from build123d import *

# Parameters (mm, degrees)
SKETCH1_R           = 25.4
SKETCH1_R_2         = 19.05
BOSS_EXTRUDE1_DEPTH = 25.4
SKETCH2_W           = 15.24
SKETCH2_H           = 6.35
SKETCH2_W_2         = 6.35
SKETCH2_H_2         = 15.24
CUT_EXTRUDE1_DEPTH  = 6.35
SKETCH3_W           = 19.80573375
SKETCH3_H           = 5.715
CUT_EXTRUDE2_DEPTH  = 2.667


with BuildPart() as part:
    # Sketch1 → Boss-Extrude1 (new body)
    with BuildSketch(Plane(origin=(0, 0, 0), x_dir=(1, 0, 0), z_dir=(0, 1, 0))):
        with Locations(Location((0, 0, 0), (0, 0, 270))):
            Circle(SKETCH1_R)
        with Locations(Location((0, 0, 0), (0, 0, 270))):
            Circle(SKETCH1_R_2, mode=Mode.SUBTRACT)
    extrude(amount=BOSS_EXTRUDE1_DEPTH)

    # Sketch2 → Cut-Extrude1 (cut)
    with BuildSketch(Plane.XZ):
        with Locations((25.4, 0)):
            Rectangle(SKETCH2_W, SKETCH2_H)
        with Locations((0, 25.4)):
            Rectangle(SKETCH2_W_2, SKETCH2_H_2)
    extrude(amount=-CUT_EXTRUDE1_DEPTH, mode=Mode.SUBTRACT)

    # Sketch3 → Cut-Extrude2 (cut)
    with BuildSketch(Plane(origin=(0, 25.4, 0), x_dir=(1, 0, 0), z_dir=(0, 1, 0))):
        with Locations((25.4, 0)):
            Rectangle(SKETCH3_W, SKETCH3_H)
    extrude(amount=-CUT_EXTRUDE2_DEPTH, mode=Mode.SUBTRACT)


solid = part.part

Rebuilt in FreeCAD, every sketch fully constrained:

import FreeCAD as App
import Part
import Sketcher
from FreeCAD import Vector
Q = App.Units.Quantity

doc = App.newDocument("Part")
body = doc.addObject("PartDesign::Body", "Body")

# Sketch on XZ plane
sketch1 = body.newObject("Sketcher::SketchObject", "Sketch")
sketch1.AttachmentSupport = (doc.getObject("XZ_Plane"), [""])
sketch1.MapMode = "FlatFace"
sketch1.addGeometry(Part.Circle(Vector(0, 0, 0), Vector(0, 0, 1), 25.4), False)
sketch1.addGeometry(Part.Circle(Vector(0, 0, 0), Vector(0, 0, 1), 19.05), False)
sketch1.addConstraint(Sketcher.Constraint("Coincident", 0, 3, -1, 1))
sketch1.addConstraint(Sketcher.Constraint("Coincident", 1, 3, -1, 1))
sketch1.addConstraint(Sketcher.Constraint("Diameter", 0, Q("2 in")))
sketch1.addConstraint(Sketcher.Constraint("Diameter", 1, Q("1.5 in")))
pad1 = body.newObject("PartDesign::Pad", "Pad")
pad1.Profile = sketch1
pad1.Length = Q("1 in")
pad1.Reversed = True

# Sketch on XZ plane
sketch2 = body.newObject("Sketcher::SketchObject", "Sketch001")
sketch2.AttachmentSupport = (doc.getObject("XZ_Plane"), [""])
sketch2.MapMode = "FlatFace"
sketch2.addGeometry(Part.LineSegment(Vector(17.78, 3.175, 0), Vector(17.78, -3.175, 0)), False)
sketch2.addGeometry(Part.LineSegment(Vector(17.78, -3.175, 0), Vector(33.02, -3.175, 0)), False)
sketch2.addGeometry(Part.LineSegment(Vector(33.02, -3.175, 0), Vector(33.02, 3.175, 0)), False)
sketch2.addGeometry(Part.LineSegment(Vector(33.02, 3.175, 0), Vector(17.78, 3.175, 0)), False)
sketch2.addGeometry(Part.LineSegment(Vector(-3.175, 33.02, 0), Vector(-3.175, 17.78, 0)), False)
sketch2.addGeometry(Part.LineSegment(Vector(-3.175, 17.78, 0), Vector(3.175, 17.78, 0)), False)
sketch2.addGeometry(Part.LineSegment(Vector(3.175, 17.78, 0), Vector(3.175, 33.02, 0)), False)
sketch2.addGeometry(Part.LineSegment(Vector(3.175, 33.02, 0), Vector(-3.175, 33.02, 0)), False)
sketch2.addConstraint(Sketcher.Constraint("Coincident", 0, 2, 1, 1))
sketch2.addConstraint(Sketcher.Constraint("Coincident", 1, 2, 2, 1))
sketch2.addConstraint(Sketcher.Constraint("Coincident", 2, 2, 3, 1))
sketch2.addConstraint(Sketcher.Constraint("Coincident", 3, 2, 0, 1))
sketch2.addConstraint(Sketcher.Constraint("Coincident", 4, 2, 5, 1))
sketch2.addConstraint(Sketcher.Constraint("Coincident", 5, 2, 6, 1))
sketch2.addConstraint(Sketcher.Constraint("Coincident", 6, 2, 7, 1))
sketch2.addConstraint(Sketcher.Constraint("Coincident", 7, 2, 4, 1))
sketch2.addConstraint(Sketcher.Constraint("Vertical", 0))
sketch2.addConstraint(Sketcher.Constraint("Horizontal", 1))
sketch2.addConstraint(Sketcher.Constraint("Vertical", 2))
sketch2.addConstraint(Sketcher.Constraint("Horizontal", 3))
sketch2.addConstraint(Sketcher.Constraint("Vertical", 4))
sketch2.addConstraint(Sketcher.Constraint("Horizontal", 5))
sketch2.addConstraint(Sketcher.Constraint("Vertical", 6))
sketch2.addConstraint(Sketcher.Constraint("Horizontal", 7))
sketch2.addConstraint(Sketcher.Constraint("Equal", 7, 0))
sketch2.addConstraint(Sketcher.Constraint("Equal", 3, 4))
sketch2.addConstraint(Sketcher.Constraint("DistanceX", 1, 1, 1, 2, Q("0.6 in")))
sketch2.addConstraint(Sketcher.Constraint("DistanceX", 5, 1, 5, 2, Q("0.25 in")))
sketch2.addConstraint(Sketcher.Constraint("DistanceX", -1, 1, 0, 2, Q("0.7 in")))
sketch2.addConstraint(Sketcher.Constraint("DistanceY", -1, 1, 4, 2, Q("0.7 in")))
sketch2.addConstraint(Sketcher.Constraint("DistanceY", 0, 2, -1, 1, Q("0.125 in")))
sketch2.addConstraint(Sketcher.Constraint("DistanceX", 4, 2, -1, 1, Q("0.125 in")))
pocket1 = body.newObject("PartDesign::Pocket", "Pocket")
pocket1.Profile = sketch2
pocket1.Length = Q("0.25 in")

# Sketch on XZ plane
sketch3 = body.newObject("Sketcher::SketchObject", "Sketch002")
sketch3.AttachmentSupport = (doc.getObject("XZ_Plane"), [""])
sketch3.MapMode = "FlatFace"
sketch3.AttachmentOffset = App.Placement(Vector(0, 0, -1 * 25.4), App.Rotation())
sketch3.addGeometry(Part.LineSegment(Vector(15.497133, -2.8575, 0), Vector(15.497133, 2.8575, 0)), False)
sketch3.addGeometry(Part.LineSegment(Vector(15.497133, 2.8575, 0), Vector(35.302867, 2.8575, 0)), False)
sketch3.addGeometry(Part.LineSegment(Vector(35.302867, 2.8575, 0), Vector(35.302867, -2.8575, 0)), False)
sketch3.addGeometry(Part.LineSegment(Vector(35.302867, -2.8575, 0), Vector(15.497133, -2.8575, 0)), False)
sketch3.addConstraint(Sketcher.Constraint("Coincident", 0, 2, 1, 1))
sketch3.addConstraint(Sketcher.Constraint("Coincident", 1, 2, 2, 1))
sketch3.addConstraint(Sketcher.Constraint("Coincident", 2, 2, 3, 1))
sketch3.addConstraint(Sketcher.Constraint("Coincident", 3, 2, 0, 1))
sketch3.addConstraint(Sketcher.Constraint("Vertical", 0))
sketch3.addConstraint(Sketcher.Constraint("Horizontal", 1))
sketch3.addConstraint(Sketcher.Constraint("Vertical", 2))
sketch3.addConstraint(Sketcher.Constraint("Horizontal", 3))
sketch3.addConstraint(Sketcher.Constraint("DistanceY", 0, 1, 0, 2, Q("0.225 in")))
sketch3.addConstraint(Sketcher.Constraint("DistanceY", -1, 1, 0, 2, Q("0.1125 in")))
sketch3.addConstraint(Sketcher.Constraint("DistanceX", 1, 1, 1, 2, 19.805734))
sketch3.addConstraint(Sketcher.Constraint("DistanceX", -1, 1, 0, 2, 15.497133))
pocket2 = body.newObject("PartDesign::Pocket", "Pocket001")
pocket2.Profile = sketch3
pocket2.Length = Q("0.105 in")
pocket2.Reversed = True

doc.recompute()
